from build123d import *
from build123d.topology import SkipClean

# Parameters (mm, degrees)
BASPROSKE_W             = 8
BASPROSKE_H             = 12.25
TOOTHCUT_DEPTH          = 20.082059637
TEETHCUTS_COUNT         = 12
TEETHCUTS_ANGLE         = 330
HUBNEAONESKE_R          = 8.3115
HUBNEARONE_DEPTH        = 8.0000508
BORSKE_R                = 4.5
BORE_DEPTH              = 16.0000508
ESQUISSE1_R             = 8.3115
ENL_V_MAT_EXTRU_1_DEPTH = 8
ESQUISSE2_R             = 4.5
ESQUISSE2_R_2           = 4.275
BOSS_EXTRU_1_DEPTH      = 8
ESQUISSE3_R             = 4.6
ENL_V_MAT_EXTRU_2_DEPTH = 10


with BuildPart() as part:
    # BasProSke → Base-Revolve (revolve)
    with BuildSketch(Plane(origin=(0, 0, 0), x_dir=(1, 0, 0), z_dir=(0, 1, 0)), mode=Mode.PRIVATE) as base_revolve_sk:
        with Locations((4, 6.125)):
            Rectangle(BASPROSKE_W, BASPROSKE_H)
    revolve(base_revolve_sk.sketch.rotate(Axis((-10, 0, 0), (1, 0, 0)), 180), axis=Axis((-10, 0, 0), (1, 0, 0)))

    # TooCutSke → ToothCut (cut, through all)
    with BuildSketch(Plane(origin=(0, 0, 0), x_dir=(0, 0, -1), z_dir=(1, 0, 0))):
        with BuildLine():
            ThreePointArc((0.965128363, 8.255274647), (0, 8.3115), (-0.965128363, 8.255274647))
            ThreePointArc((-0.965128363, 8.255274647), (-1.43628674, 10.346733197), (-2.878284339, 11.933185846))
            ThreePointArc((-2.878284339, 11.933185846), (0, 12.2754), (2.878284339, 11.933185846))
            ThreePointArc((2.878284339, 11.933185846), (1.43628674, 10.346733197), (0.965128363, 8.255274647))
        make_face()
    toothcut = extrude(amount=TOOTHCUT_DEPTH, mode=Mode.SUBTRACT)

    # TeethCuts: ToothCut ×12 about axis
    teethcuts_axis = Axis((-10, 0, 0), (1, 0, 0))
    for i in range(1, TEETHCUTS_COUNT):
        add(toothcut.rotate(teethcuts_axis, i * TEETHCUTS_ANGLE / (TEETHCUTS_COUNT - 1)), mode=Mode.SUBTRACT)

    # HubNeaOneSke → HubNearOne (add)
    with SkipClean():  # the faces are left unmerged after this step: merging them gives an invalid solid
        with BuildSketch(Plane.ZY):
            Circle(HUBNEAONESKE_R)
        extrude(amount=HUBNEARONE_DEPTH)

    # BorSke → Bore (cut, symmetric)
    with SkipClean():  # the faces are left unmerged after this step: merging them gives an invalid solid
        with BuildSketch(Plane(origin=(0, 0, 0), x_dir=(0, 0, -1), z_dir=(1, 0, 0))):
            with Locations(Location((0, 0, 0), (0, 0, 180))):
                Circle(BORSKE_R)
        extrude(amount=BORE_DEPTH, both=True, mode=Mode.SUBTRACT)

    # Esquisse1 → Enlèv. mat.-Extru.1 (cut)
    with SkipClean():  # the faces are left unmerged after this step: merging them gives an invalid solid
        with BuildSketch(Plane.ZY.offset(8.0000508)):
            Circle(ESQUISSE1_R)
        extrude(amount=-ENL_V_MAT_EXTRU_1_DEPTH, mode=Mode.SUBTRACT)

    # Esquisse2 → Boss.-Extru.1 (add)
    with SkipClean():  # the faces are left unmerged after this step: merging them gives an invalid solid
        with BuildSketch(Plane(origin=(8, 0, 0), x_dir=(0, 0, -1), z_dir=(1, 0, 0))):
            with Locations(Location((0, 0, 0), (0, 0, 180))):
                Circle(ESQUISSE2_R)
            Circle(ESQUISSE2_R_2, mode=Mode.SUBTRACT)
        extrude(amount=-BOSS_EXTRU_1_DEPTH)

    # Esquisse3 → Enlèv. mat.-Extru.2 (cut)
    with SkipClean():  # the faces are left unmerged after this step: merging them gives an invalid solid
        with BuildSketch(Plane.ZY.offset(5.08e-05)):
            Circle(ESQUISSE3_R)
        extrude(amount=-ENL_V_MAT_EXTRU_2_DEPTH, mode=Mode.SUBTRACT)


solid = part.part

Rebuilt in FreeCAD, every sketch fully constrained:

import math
import FreeCAD as App
import Part
import Sketcher
from FreeCAD import Vector


def add_polygon(sketch, points):
    """Adds a closed chain of lines whose ends are joined by coincident constraints."""
    first, n = sketch.GeometryCount, len(points)
    for a, b in zip(points, points[1:] + points[:1]):
        sketch.addGeometry(Part.LineSegment(App.Vector(*a, 0), App.Vector(*b, 0)), False)
    for i in range(n):
        sketch.addConstraint(Sketcher.Constraint("Coincident", first + i, 2, first + (i + 1) % n, 1))

doc = App.newDocument("Part")
body = doc.addObject("PartDesign::Body", "Body")

sketch1 = body.newObject("Sketcher::SketchObject", "Sketch")
sketch1.AttachmentSupport = (doc.getObject("XZ_Plane"), [""])
sketch1.MapMode = "FlatFace"
add_polygon(sketch1, [(0, -12), (0, 0), (8, 0), (8, -12)])
sketch1.addConstraint(Sketcher.Constraint("Vertical", 0))
sketch1.addConstraint(Sketcher.Constraint("Horizontal", 1))
sketch1.addConstraint(Sketcher.Constraint("Vertical", 2))
sketch1.addConstraint(Sketcher.Constraint("Horizontal", 3))
sketch1.addConstraint(Sketcher.Constraint("Coincident", 0, 2, -1, 1))
sketch1.addConstraint(Sketcher.Constraint("DistanceX", 1, 1, 1, 2, 8.0))
sketch1.addConstraint(Sketcher.Constraint("DistanceY", 0, 1, 0, 2, 12.25))
revolution = body.newObject("PartDesign::Revolution", "Revolution")
revolution.Profile = sketch1
revolution.ReferenceAxis = (sketch1, ["H_Axis"])
revolution.Angle = 360

sketch2 = body.newObject("Sketcher::SketchObject", "Sketch001")
sketch2.AttachmentSupport = (doc.getObject("YZ_Plane"), [""])
sketch2.MapMode = "FlatFace"
sketch2.addGeometry(Part.ArcOfCircle(Part.Circle(Vector(0, 0, 0), Vector(0, 0, 1), 8.3), math.radians(-6.67), math.radians(6.67)), False)
sketch2.addGeometry(Part.ArcOfCircle(Part.Circle(Vector(8.4, -5.2, 0), Vector(0, 0, 1), 4.2), math.radians(33), math.radians(92)), False)
sketch2.addGeometry(Part.ArcOfCircle(Part.Circle(Vector(0, 0, 0), Vector(0, 0, 1), 12.3), math.radians(-14), math.radians(14)), False)
sketch2.addGeometry(Part.ArcOfCircle(Part.Circle(Vector(8.4, 5.2, 0), Vector(0, 0, 1), 4.2), math.radians(-92), math.radians(-33)), False)
sketch2.addConstraint(Sketcher.Constraint("Coincident", 0, 1, 1, 2))
sketch2.addConstraint(Sketcher.Constraint("Coincident", 1, 1, 2, 1))
sketch2.addConstraint(Sketcher.Constraint("Coincident", 2, 2, 3, 2))
sketch2.addConstraint(Sketcher.Constraint("Coincident", 3, 1, 0, 2))
sketch2.addConstraint(Sketcher.Constraint("Coincident", 0, 3, -1, 1))
sketch2.addConstraint(Sketcher.Constraint("Coincident", 2, 3, -1, 1))
sketch2.addConstraint(Sketcher.Constraint("Equal", 1, 3))
sketch2.addConstraint(Sketcher.Constraint("Symmetric", 1, 3, 3, 3, -1))
sketch2.addConstraint(Sketcher.Constraint("Radius", 1, 4.2))
sketch2.addConstraint(Sketcher.Constraint("Radius", 0, 8.3115))
sketch2.addConstraint(Sketcher.Constraint("Radius", 2, 12.2754))
sketch2.addConstraint(Sketcher.Constraint("DistanceX", -1, 1, 1, 3, 8.40854))
sketch2.addConstraint(Sketcher.Constraint("DistanceY", 1, 3, -1, 1, 5.162331))
pocket1 = body.newObject("PartDesign::Pocket", "Pocket")
pocket1.Profile = sketch2
pocket1.Type = "ThroughAll"
pocket1.Reversed = True
doc.recompute()

polarpattern = body.newObject("PartDesign::PolarPattern", "PolarPattern")
polarpattern.Originals = [pocket1]
polarpattern.Axis = (doc.getObject("X_Axis"), [""])
polarpattern.Angle = 360
polarpattern.Occurrences = 12
body.Tip = polarpattern

sketch3 = body.newObject("Sketcher::SketchObject", "Sketch002")
sketch3.AttachmentSupport = (doc.getObject("YZ_Plane"), [""])
sketch3.MapMode = "FlatFace"
sketch3.addGeometry(Part.Circle(Vector(0, 0, 0), Vector(0, 0, 1), 8), False)
sketch3.addConstraint(Sketcher.Constraint("Coincident", 0, 3, -1, 1))
sketch3.addConstraint(Sketcher.Constraint("Diameter", 0, 16.623))
pad1 = body.newObject("PartDesign::Pad", "Pad")
pad1.Profile = sketch3
pad1.Length = 8.000051
pad1.Reversed = True

sketch4 = body.newObject("Sketcher::SketchObject", "Sketch003")
sketch4.AttachmentSupport = (doc.getObject("YZ_Plane"), [""])
sketch4.MapMode = "FlatFace"
sketch4.addGeometry(Part.Circle(Vector(0, 0, 0), Vector(0, 0, 1), 4.5), False)
sketch4.addConstraint(Sketcher.Constraint("Coincident", 0, 3, -1, 1))
sketch4.addConstraint(Sketcher.Constraint("Diameter", 0, 9.0))
pocket2 = body.newObject("PartDesign::Pocket", "Pocket001")
pocket2.Profile = sketch4
pocket2.Length = 32.000102
pocket2.Midplane = True

sketch5 = body.newObject("Sketcher::SketchObject", "Sketch004")
sketch5.AttachmentSupport = (doc.getObject("YZ_Plane"), [""])
sketch5.MapMode = "FlatFace"
sketch5.AttachmentOffset = App.Placement(Vector(0, 0, -8.000051), App.Rotation())
sketch5.addGeometry(Part.Circle(Vector(0, 0, 0), Vector(0, 0, 1), 8), False)
sketch5.addConstraint(Sketcher.Constraint("Coincident", 0, 3, -1, 1))
sketch5.addConstraint(Sketcher.Constraint("Diameter", 0, 16.623))
pocket3 = body.newObject("PartDesign::Pocket", "Pocket002")
pocket3.Profile = sketch5
pocket3.Length = 8
pocket3.Reversed = True

sketch6 = body.newObject("Sketcher::SketchObject", "Sketch005")
sketch6.AttachmentSupport = (doc.getObject("YZ_Plane"), [""])
sketch6.MapMode = "FlatFace"
sketch6.AttachmentOffset = App.Placement(Vector(0, 0, 8), App.Rotation())
sketch6.addGeometry(Part.Circle(Vector(0, 0, 0), Vector(0, 0, 1), 4.5), False)
sketch6.addGeometry(Part.Circle(Vector(0, 0, 0), Vector(0, 0, 1), 4.3), False)
sketch6.addConstraint(Sketcher.Constraint("Coincident", 0, 3, -1, 1))
sketch6.addConstraint(Sketcher.Constraint("Coincident", 1, 3, -1, 1))
sketch6.addConstraint(Sketcher.Constraint("Diameter", 0, 9.0))
sketch6.addConstraint(Sketcher.Constraint("Diameter", 1, 8.55))
pad2 = body.newObject("PartDesign::Pad", "Pad001")
pad2.Profile = sketch6
pad2.Length = 8
pad2.Reversed = True

sketch7 = body.newObject("Sketcher::SketchObject", "Sketch006")
sketch7.AttachmentSupport = (doc.getObject("YZ_Plane"), [""])
sketch7.MapMode = "FlatFace"
sketch7.AttachmentOffset = App.Placement(Vector(0, 0, -0.000051), App.Rotation())
sketch7.addGeometry(Part.Circle(Vector(0, 0, 0), Vector(0, 0, 1), 4.6), False)
sketch7.addConstraint(Sketcher.Constraint("Coincident", 0, 3, -1, 1))
sketch7.addConstraint(Sketcher.Constraint("Diameter", 0, 9.2))
pocket4 = body.newObject("PartDesign::Pocket", "Pocket003")
pocket4.Profile = sketch7
pocket4.Length = 10
pocket4.Reversed = True

doc.recompute()
